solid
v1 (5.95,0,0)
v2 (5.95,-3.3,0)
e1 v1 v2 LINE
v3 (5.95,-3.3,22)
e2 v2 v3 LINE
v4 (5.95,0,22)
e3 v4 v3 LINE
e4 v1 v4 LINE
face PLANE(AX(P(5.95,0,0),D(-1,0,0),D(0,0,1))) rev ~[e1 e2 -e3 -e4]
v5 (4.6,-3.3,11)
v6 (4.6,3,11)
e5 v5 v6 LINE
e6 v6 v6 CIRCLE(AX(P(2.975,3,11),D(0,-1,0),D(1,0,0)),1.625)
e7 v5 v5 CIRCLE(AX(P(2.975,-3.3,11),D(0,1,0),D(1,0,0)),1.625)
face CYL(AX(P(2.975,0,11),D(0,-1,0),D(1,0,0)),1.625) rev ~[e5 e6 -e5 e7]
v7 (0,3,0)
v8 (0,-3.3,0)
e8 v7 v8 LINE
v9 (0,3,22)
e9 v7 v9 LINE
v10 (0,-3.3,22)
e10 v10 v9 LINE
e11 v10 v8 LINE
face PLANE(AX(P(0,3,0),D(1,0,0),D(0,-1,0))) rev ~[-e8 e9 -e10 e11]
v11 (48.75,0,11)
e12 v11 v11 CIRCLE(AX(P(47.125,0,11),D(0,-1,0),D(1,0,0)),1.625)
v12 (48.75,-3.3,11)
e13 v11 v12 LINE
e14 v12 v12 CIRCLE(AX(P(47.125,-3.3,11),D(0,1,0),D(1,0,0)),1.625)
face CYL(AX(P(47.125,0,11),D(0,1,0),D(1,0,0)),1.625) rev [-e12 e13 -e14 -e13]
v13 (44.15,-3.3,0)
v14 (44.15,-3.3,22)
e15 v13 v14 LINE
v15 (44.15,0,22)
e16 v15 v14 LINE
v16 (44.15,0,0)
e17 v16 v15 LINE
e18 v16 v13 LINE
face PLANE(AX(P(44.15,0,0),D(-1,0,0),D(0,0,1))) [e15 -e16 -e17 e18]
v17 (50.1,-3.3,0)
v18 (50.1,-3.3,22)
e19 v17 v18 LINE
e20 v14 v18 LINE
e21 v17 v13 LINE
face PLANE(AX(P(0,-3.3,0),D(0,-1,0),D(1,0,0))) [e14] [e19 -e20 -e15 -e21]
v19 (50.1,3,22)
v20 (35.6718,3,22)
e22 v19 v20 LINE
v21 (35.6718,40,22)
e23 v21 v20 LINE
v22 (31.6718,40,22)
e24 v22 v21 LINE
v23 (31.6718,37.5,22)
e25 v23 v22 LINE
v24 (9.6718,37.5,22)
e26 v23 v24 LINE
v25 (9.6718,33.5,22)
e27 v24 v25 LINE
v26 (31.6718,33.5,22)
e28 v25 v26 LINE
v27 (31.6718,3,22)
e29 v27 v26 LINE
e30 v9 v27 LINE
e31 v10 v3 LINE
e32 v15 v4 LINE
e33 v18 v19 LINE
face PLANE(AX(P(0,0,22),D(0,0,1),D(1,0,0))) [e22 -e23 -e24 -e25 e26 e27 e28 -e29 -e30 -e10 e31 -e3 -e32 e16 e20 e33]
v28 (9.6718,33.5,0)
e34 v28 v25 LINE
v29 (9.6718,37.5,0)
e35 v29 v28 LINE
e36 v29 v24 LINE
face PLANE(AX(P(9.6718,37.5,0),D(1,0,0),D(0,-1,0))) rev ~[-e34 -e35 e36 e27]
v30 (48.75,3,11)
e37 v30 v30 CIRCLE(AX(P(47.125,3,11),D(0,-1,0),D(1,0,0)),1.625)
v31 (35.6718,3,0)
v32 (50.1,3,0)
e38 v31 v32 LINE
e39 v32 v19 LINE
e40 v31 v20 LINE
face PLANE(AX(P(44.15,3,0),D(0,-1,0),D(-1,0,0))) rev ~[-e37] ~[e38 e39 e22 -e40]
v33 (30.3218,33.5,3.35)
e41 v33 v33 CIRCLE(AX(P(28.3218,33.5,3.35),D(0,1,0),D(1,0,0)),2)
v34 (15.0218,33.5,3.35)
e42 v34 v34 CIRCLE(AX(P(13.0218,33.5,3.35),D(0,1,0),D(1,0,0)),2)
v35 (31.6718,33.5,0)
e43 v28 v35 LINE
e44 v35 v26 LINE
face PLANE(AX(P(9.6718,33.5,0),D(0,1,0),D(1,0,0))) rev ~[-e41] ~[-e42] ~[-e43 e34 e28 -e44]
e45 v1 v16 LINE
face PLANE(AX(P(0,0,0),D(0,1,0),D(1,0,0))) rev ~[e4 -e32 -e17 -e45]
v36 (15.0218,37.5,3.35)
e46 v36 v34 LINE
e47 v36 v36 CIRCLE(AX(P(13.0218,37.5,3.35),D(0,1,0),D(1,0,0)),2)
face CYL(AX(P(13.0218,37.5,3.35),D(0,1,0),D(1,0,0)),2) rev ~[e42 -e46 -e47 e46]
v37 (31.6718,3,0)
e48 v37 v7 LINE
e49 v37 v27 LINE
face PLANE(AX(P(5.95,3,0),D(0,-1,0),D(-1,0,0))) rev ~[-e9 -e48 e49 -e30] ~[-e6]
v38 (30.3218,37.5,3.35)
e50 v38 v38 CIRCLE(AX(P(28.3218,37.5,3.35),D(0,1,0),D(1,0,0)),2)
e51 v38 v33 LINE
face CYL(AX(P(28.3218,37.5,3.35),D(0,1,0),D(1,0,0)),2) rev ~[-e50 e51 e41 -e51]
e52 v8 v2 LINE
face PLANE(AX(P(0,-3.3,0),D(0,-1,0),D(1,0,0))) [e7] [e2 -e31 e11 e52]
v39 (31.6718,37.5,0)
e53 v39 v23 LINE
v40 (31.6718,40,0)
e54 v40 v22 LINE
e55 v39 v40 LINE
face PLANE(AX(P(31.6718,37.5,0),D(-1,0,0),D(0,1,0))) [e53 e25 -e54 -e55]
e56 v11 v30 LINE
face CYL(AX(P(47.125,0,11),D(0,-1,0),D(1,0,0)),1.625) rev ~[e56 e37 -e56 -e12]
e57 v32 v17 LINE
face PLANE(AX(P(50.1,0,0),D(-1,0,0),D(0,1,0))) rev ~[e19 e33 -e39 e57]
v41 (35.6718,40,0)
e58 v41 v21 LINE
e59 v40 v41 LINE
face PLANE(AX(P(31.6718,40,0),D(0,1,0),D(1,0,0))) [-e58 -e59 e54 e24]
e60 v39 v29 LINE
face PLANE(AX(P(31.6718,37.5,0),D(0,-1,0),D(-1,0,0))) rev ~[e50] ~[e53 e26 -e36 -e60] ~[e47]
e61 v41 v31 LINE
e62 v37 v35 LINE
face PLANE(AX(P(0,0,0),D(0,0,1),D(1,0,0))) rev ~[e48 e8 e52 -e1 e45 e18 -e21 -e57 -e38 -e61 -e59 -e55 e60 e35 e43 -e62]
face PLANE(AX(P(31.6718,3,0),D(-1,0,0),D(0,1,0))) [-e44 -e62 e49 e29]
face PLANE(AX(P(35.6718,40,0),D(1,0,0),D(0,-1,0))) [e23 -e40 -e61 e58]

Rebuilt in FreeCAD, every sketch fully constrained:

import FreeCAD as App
import Part
import Sketcher
Q = App.Units.Quantity

doc = App.newDocument("Part")
body = doc.addObject("PartDesign::Body", "Body")

sketch1 = doc.addObject("Sketcher::SketchObject", "Sketch")
body.addObject(sketch1)
sketch1.AttachmentSupport = (doc.XY_Plane, [""])
sketch1.MapMode = "FlatFace"
sketch1.addGeometry([
    Part.LineSegment(App.Vector(0, 3, 0), App.Vector(0, 0, 0)),
    Part.LineSegment(App.Vector(0, 0, 0), App.Vector(50.1, 0, 0)),
    Part.LineSegment(App.Vector(50.1, 0, 0), App.Vector(50.1, 3, 0)),
    Part.LineSegment(App.Vector(50.1, 3, 0), App.Vector(35.7, 3, 0)),
    Part.LineSegment(App.Vector(35.7, 3, 0), App.Vector(35.7, 40, 0)),
    Part.LineSegment(App.Vector(35.7, 40, 0), App.Vector(31.7, 40, 0)),
    Part.LineSegment(App.Vector(31.7, 40, 0), App.Vector(31.7, 37.5, 0)),
    Part.LineSegment(App.Vector(31.7, 37.5, 0), App.Vector(9.7, 37.5, 0)),
    Part.LineSegment(App.Vector(9.7, 37.5, 0), App.Vector(9.7, 33.5, 0)),
    Part.LineSegment(App.Vector(9.7, 33.5, 0), App.Vector(31.7, 33.5, 0)),
    Part.LineSegment(App.Vector(31.7, 33.5, 0), App.Vector(31.7, 3, 0)),
    Part.LineSegment(App.Vector(31.7, 3, 0), App.Vector(0, 3, 0)),
], False)
sketch1.addConstraint([
    Sketcher.Constraint("Coincident", 0, 2, 1, 1),
    Sketcher.Constraint("Coincident", 1, 2, 2, 1),
    Sketcher.Constraint("Coincident", 2, 2, 3, 1),
    Sketcher.Constraint("Coincident", 3, 2, 4, 1),
    Sketcher.Constraint("Coincident", 4, 2, 5, 1),
    Sketcher.Constraint("Coincident", 5, 2, 6, 1),
    Sketcher.Constraint("Coincident", 6, 2, 7, 1),
    Sketcher.Constraint("Coincident", 7, 2, 8, 1),
    Sketcher.Constraint("Coincident", 8, 2, 9, 1),
    Sketcher.Constraint("Coincident", 9, 2, 10, 1),
    Sketcher.Constraint("Coincident", 10, 2, 11, 1),
    Sketcher.Constraint("Coincident", 11, 2, 0, 1),
    Sketcher.Constraint("Vertical", 0),
    Sketcher.Constraint("Horizontal", 1),
    Sketcher.Constraint("Vertical", 2),
    Sketcher.Constraint("Horizontal", 3),
    Sketcher.Constraint("Vertical", 4),
    Sketcher.Constraint("Horizontal", 5),
    Sketcher.Constraint("Vertical", 6),
    Sketcher.Constraint("Horizontal", 7),
    Sketcher.Constraint("Vertical", 8),
    Sketcher.Constraint("Horizontal", 9),
    Sketcher.Constraint("Vertical", 10),
    Sketcher.Constraint("Horizontal", 11),
    Sketcher.Constraint("Coincident", 0, 2, -1, 1),
    Sketcher.Constraint("Horizontal", 3, 2, 10, 2),
    Sketcher.Constraint("Vertical", 6, 2, 9, 2),
    Sketcher.Constraint("Equal", 5, 8),
    Sketcher.Constraint("DistanceX", 5, 2, 5, 1, Q("4 mm")),
    Sketcher.Constraint("DistanceX", 7, 2, 7, 1, Q("22 mm")),
    Sketcher.Constraint("DistanceY", 0, 2, 0, 1, Q("3 mm")),
    Sketcher.Constraint("DistanceX", 1, 1, 1, 2, Q("50.1 mm")),
    Sketcher.Constraint("DistanceY", 6, 2, 6, 1, Q("2.5 mm")),
    Sketcher.Constraint("DistanceY", -1, 1, 4, 2, Q("40 mm")),
    Sketcher.Constraint("DistanceX", 3, 2, 3, 1, Q("14.4282 mm")),
])
pad1 = doc.addObject("PartDesign::Pad", "Pad")
body.addObject(pad1)
pad1.Profile = sketch1
pad1.Length = 22

sketch2 = doc.addObject("Sketcher::SketchObject", "Sketch001")
body.addObject(sketch2)
sketch2.AttachmentSupport = (doc.XZ_Plane, [""])
sketch2.MapMode = "FlatFace"
sketch2.addGeometry([
    Part.LineSegment(App.Vector(44, 0, 0), App.Vector(50, 0, 0)),
    Part.LineSegment(App.Vector(50, 0, 0), App.Vector(50, 22, 0)),
    Part.LineSegment(App.Vector(50, 22, 0), App.Vector(44, 22, 0)),
    Part.LineSegment(App.Vector(44, 22, 0), App.Vector(44, 0, 0)),
    Part.LineSegment(App.Vector(6, 0, 0), App.Vector(6, 22, 0)),
    Part.LineSegment(App.Vector(6, 22, 0), App.Vector(0, 22, 0)),
    Part.LineSegment(App.Vector(0, 22, 0), App.Vector(0, 0, 0)),
    Part.LineSegment(App.Vector(0, 0, 0), App.Vector(6, 0, 0)),
], False)
sketch2.addConstraint([
    Sketcher.Constraint("Coincident", 0, 2, 1, 1),
    Sketcher.Constraint("Coincident", 1, 2, 2, 1),
    Sketcher.Constraint("Coincident", 2, 2, 3, 1),
    Sketcher.Constraint("Coincident", 3, 2, 0, 1),
    Sketcher.Constraint("Coincident", 4, 2, 5, 1),
    Sketcher.Constraint("Coincident", 5, 2, 6, 1),
    Sketcher.Constraint("Coincident", 6, 2, 7, 1),
    Sketcher.Constraint("Coincident", 7, 2, 4, 1),
    Sketcher.Constraint("Horizontal", 0),
    Sketcher.Constraint("Vertical", 1),
    Sketcher.Constraint("Horizontal", 2),
    Sketcher.Constraint("Vertical", 3),
    Sketcher.Constraint("Vertical", 4),
    Sketcher.Constraint("Horizontal", 5),
    Sketcher.Constraint("Vertical", 6),
    Sketcher.Constraint("Horizontal", 7),
    Sketcher.Constraint("Coincident", 6, 2, -1, 1),
    Sketcher.Constraint("PointOnObject", 0, 2, -1),
    Sketcher.Constraint("Horizontal", 2, 2, 4, 2),
    Sketcher.Constraint("Equal", 2, 5),
    Sketcher.Constraint("DistanceX", 0, 1, 0, 2, Q("5.95 mm")),
    Sketcher.Constraint("DistanceY", 1, 1, 1, 2, Q("22 mm")),
    Sketcher.Constraint("DistanceX", -1, 1, 0, 2, Q("50.1 mm")),
])
pad2 = doc.addObject("PartDesign::Pad", "Pad001")
body.addObject(pad2)
pad2.Profile = sketch2
pad2.Length = 3.3

sketch3 = doc.addObject("Sketcher::SketchObject", "Sketch002")
body.addObject(sketch3)
sketch3.AttachmentSupport = (doc.XZ_Plane, [""])
sketch3.MapMode = "FlatFace"
sketch3.addGeometry([
    Part.Circle(App.Vector(47.1, 11, 0), App.Vector(0, 0, 1), 1.6),
    Part.Circle(App.Vector(3, 11, 0), App.Vector(0, 0, 1), 1.6),
], False)
sketch3.addConstraint([
    Sketcher.Constraint("Equal", 0, 1),
    Sketcher.Constraint("Horizontal", 0, 3, 1, 3),
    Sketcher.Constraint("Diameter", 0, Q("3.25 mm")),
    Sketcher.Constraint("DistanceY", -1, 1, 0, 3, Q("11 mm")),
    Sketcher.Constraint("DistanceX", -1, 1, 1, 3, Q("2.975 mm")),
    Sketcher.Constraint("DistanceX", 1, 3, 0, 3, Q("44.15 mm")),
])
pocket1 = doc.addObject("PartDesign::Pocket", "Pocket")
body.addObject(pocket1)
pocket1.Profile = sketch3
pocket1.Type = "ThroughAll"
pocket1.Midplane = True

sketch4 = doc.addObject("Sketcher::SketchObject", "Sketch003")
body.addObject(sketch4)
sketch4.AttachmentSupport = (doc.XZ_Plane, [""])
sketch4.MapMode = "FlatFace"
sketch4.AttachmentOffset = App.Placement(App.Vector(0, 0, -37.5), App.Rotation())
sketch4.addGeometry([
    Part.Circle(App.Vector(28.3, 3.4, 0), App.Vector(0, 0, 1), 2),
    Part.Circle(App.Vector(13, 3.4, 0), App.Vector(0, 0, 1), 2),
], False)
sketch4.addConstraint([
    Sketcher.Constraint("Equal", 0, 1),
    Sketcher.Constraint("Horizontal", 0, 3, 1, 3),
    Sketcher.Constraint("Diameter", 0, Q("4 mm")),
    Sketcher.Constraint("DistanceX", 1, 3, 0, 3, Q("15.3 mm")),
    Sketcher.Constraint("DistanceY", -1, 1, 0, 3, Q("3.35 mm")),
    Sketcher.Constraint("DistanceX", -1, 1, 0, 3, Q("28.3218 mm")),
])
pocket2 = doc.addObject("PartDesign::Pocket", "Pocket001")
body.addObject(pocket2)
pocket2.Profile = sketch4
pocket2.Length = 10
pocket2.Reversed = True

doc.recompute()
